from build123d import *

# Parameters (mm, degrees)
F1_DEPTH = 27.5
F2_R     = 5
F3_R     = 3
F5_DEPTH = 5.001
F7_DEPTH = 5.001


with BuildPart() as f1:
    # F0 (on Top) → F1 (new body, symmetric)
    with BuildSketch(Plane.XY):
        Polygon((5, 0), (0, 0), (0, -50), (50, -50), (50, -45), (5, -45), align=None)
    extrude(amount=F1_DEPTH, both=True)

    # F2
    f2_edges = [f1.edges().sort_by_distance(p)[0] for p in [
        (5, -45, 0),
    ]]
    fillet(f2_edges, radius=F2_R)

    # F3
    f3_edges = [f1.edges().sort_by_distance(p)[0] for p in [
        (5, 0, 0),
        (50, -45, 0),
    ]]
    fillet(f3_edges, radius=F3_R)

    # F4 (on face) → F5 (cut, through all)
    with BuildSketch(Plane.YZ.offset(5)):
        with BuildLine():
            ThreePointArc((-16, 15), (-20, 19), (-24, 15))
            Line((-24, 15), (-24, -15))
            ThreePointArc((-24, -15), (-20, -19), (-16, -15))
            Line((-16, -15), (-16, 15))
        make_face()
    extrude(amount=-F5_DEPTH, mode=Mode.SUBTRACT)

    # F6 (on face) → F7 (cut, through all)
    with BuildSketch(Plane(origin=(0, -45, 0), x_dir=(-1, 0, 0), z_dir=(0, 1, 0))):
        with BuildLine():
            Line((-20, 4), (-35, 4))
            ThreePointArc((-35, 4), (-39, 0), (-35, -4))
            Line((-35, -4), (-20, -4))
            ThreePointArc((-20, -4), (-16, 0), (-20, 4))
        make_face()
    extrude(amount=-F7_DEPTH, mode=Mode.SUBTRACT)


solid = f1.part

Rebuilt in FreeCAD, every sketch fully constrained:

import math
import FreeCAD as App
import Part
import Sketcher
from FreeCAD import Vector


def edges_at(feature, points):
    """Names of the edges that pass closest to the given points."""
    edges = feature.Shape.Edges
    near = lambda p: min(range(len(edges)), key=lambda i: edges[i].distToShape(Part.Vertex(*p))[0])
    return sorted({f"Edge{near(p) + 1}" for p in points})

doc = App.newDocument("Part")
body = doc.addObject("PartDesign::Body", "Body")

# Sketch on XY plane
sketch1 = body.newObject("Sketcher::SketchObject", "Sketch")
sketch1.AttachmentSupport = (doc.getObject("XY_Plane"), [""])
sketch1.MapMode = "FlatFace"
sketch1.addGeometry([
    Part.LineSegment(Vector(5, 0, 0), Vector(0, 0, 0)),  # 0
    Part.LineSegment(Vector(0, 0, 0), Vector(0, -50, 0)),  # 1
    Part.LineSegment(Vector(0, -50, 0), Vector(50, -50, 0)),  # 2
    Part.LineSegment(Vector(50, -50, 0), Vector(50, -45, 0)),  # 3
    Part.LineSegment(Vector(50, -45, 0), Vector(5, -45, 0)),  # 4
    Part.LineSegment(Vector(5, -45, 0), Vector(5, 0, 0)),  # 5
], False)
sketch1.addConstraint([
    Sketcher.Constraint("Coincident", 0, 2, 1, 1),
    Sketcher.Constraint("Coincident", 1, 2, 2, 1),
    Sketcher.Constraint("Coincident", 2, 2, 3, 1),
    Sketcher.Constraint("Coincident", 3, 2, 4, 1),
    Sketcher.Constraint("Coincident", 4, 2, 5, 1),
    Sketcher.Constraint("Coincident", 5, 2, 0, 1),
    Sketcher.Constraint("Horizontal", 0),
    Sketcher.Constraint("Vertical", 1),
    Sketcher.Constraint("Horizontal", 2),
    Sketcher.Constraint("Vertical", 3),
    Sketcher.Constraint("Horizontal", 4),
    Sketcher.Constraint("Vertical", 5),
    Sketcher.Constraint("Coincident", 0, 2, -1, 1),
    Sketcher.Constraint("Equal", 2, 1),
    Sketcher.Constraint("Equal", 0, 3),
    Sketcher.Constraint("DistanceX", 0, 2, 0, 1, 5.0),
    Sketcher.Constraint("DistanceX", 2, 1, 2, 2, 50.0),
])
pad1 = body.newObject("PartDesign::Pad", "Pad")
pad1.Profile = sketch1
pad1.Length = 55
pad1.Midplane = True
doc.recompute()

fillet = body.newObject("PartDesign::Fillet", "Fillet")
fillet.Base = (pad1, edges_at(pad1, [(5, -45, 0)]))
fillet.Radius = 5
doc.recompute()

fillet2 = body.newObject("PartDesign::Fillet", "Fillet001")
fillet2.Base = (fillet, edges_at(fillet, [(5, 0, 0), (50, -45, 0)]))
fillet2.Radius = 3

# Sketch on YZ plane
sketch2 = body.newObject("Sketcher::SketchObject", "Sketch001")
sketch2.AttachmentSupport = (doc.getObject("YZ_Plane"), [""])
sketch2.MapMode = "FlatFace"
sketch2.AttachmentOffset = App.Placement(Vector(0, 0, 5), App.Rotation())
sketch2.addGeometry([
    Part.ArcOfCircle(Part.Circle(Vector(-20, 15, 0), Vector(0, 0, 1), 4), math.radians(0), math.radians(180)),
    Part.LineSegment(Vector(-24, 15, 0), Vector(-24, -15, 0)),
    Part.ArcOfCircle(Part.Circle(Vector(-20, -15, 0), Vector(0, 0, 1), 4), math.radians(180), math.radians(360)),
    Part.LineSegment(Vector(-16, -15, 0), Vector(-16, 15, 0)),
], False)
sketch2.addConstraint([
    Sketcher.Constraint("Tangent", 0, 2, 1, 1),
    Sketcher.Constraint("Tangent", 1, 2, 2, 1),
    Sketcher.Constraint("Tangent", 2, 2, 3, 1),
    Sketcher.Constraint("Tangent", 3, 2, 0, 1),
    Sketcher.Constraint("Vertical", 1),
    Sketcher.Constraint("Vertical", 3),
    Sketcher.Constraint("Radius", 0, 4.0),
    Sketcher.Constraint("DistanceY", 1, 2, 1, 1, 30.0),
    Sketcher.Constraint("DistanceX", 0, 3, -1, 1, 20.0),
    Sketcher.Constraint("DistanceY", -1, 1, 0, 3, 15.0),
])
pocket1 = body.newObject("PartDesign::Pocket", "Pocket")
pocket1.Profile = sketch2
pocket1.Type = "ThroughAll"

# Sketch on XZ plane
sketch3 = body.newObject("Sketcher::SketchObject", "Sketch002")
sketch3.AttachmentSupport = (doc.getObject("XZ_Plane"), [""])
sketch3.MapMode = "FlatFace"
sketch3.AttachmentOffset = App.Placement(Vector(0, 0, 45), App.Rotation())
sketch3.addGeometry([
    Part.LineSegment(Vector(20, 4, 0), Vector(35, 4, 0)),
    Part.ArcOfCircle(Part.Circle(Vector(35, 0, 0), Vector(0, 0, 1), 4), math.radians(-90), math.radians(90)),
    Part.LineSegment(Vector(35, -4, 0), Vector(20, -4, 0)),
    Part.ArcOfCircle(Part.Circle(Vector(20, 0, 0), Vector(0, 0, 1), 4), math.radians(90), math.radians(270)),
], False)
sketch3.addConstraint([
    Sketcher.Constraint("Tangent", 0, 2, 1, 2),
    Sketcher.Constraint("Tangent", 1, 1, 2, 1),
    Sketcher.Constraint("Tangent", 2, 2, 3, 2),
    Sketcher.Constraint("Tangent", 3, 1, 0, 1),
    Sketcher.Constraint("Horizontal", 0),
    Sketcher.Constraint("Horizontal", 2),
    Sketcher.Constraint("PointOnObject", 1, 3, -1),
    Sketcher.Constraint("Radius", 1, 4.0),
    Sketcher.Constraint("DistanceX", 0, 1, 0, 2, 15.0),
    Sketcher.Constraint("DistanceX", -1, 1, 1, 3, 35.0),
])
pocket2 = body.newObject("PartDesign::Pocket", "Pocket001")
pocket2.Profile = sketch3
pocket2.Type = "ThroughAll"
pocket2.Reversed = True

doc.recompute()
